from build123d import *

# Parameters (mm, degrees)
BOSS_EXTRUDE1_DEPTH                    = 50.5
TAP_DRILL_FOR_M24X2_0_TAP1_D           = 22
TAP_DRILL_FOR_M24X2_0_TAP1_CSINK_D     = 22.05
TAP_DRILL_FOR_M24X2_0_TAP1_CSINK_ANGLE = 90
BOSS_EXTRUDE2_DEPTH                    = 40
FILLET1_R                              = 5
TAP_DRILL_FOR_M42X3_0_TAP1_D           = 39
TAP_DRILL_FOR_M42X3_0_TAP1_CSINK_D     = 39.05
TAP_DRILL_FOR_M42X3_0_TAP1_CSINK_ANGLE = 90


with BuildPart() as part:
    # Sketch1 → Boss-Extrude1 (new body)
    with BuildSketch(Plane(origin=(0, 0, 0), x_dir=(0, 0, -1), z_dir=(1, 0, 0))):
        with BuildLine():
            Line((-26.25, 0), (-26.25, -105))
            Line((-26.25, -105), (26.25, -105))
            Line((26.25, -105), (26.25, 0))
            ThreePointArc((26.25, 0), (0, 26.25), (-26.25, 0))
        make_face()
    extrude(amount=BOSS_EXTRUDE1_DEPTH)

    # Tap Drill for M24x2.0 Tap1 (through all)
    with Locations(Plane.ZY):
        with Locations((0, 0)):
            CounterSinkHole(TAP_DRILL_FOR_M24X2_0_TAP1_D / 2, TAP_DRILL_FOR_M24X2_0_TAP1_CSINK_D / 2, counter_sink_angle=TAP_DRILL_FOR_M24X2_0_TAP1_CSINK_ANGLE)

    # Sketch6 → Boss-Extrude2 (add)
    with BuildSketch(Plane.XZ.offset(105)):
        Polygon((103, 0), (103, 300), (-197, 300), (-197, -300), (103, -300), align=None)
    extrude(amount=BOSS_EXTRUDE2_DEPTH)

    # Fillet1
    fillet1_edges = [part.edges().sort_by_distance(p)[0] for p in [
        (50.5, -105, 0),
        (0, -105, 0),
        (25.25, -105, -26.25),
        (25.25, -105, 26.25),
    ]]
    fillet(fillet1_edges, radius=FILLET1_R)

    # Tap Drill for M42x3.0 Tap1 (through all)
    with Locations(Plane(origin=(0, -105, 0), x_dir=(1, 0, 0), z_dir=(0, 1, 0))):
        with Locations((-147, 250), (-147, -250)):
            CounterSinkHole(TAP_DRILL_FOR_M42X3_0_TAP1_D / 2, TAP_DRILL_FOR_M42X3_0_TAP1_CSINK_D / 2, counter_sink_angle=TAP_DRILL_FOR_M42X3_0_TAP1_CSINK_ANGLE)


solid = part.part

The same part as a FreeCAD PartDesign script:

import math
import FreeCAD as App
import Part
import Sketcher
from FreeCAD import Vector


def edges_at(feature, points):
    """Names of the edges that pass closest to the given points."""
    edges = feature.Shape.Edges
    near = lambda p: min(range(len(edges)), key=lambda i: edges[i].distToShape(Part.Vertex(*p))[0])
    return sorted({f"Edge{near(p) + 1}" for p in points})

doc = App.newDocument("Part")
body = doc.addObject("PartDesign::Body", "Body")

# Sketch on YZ plane
sketch1 = body.newObject("Sketcher::SketchObject", "Sketch")
sketch1.AttachmentSupport = (doc.getObject("YZ_Plane"), [""])
sketch1.MapMode = "FlatFace"
sketch1.addGeometry(Part.LineSegment(Vector(0, 26, 0), Vector(-105, 26, 0)), False)
sketch1.addGeometry(Part.LineSegment(Vector(-105, 26, 0), Vector(-105, -26, 0)), False)
sketch1.addGeometry(Part.LineSegment(Vector(-105, -26, 0), Vector(0, -26, 0)), False)
sketch1.addGeometry(Part.ArcOfCircle(Part.Circle(Vector(0, 0, 0), Vector(0, 0, 1), 26), math.radians(-90), math.radians(90)), False)
sketch1.addConstraint(Sketcher.Constraint("Coincident", 0, 2, 1, 1))
sketch1.addConstraint(Sketcher.Constraint("Coincident", 1, 2, 2, 1))
sketch1.addConstraint(Sketcher.Constraint("Tangent", 2, 2, 3, 1))
sketch1.addConstraint(Sketcher.Constraint("Tangent", 3, 2, 0, 1))
sketch1.addConstraint(Sketcher.Constraint("Horizontal", 0))
sketch1.addConstraint(Sketcher.Constraint("Vertical", 1))
sketch1.addConstraint(Sketcher.Constraint("Horizontal", 2))
sketch1.addConstraint(Sketcher.Constraint("Coincident", 3, 3, -1, 1))
sketch1.addConstraint(Sketcher.Constraint("DistanceX", 0, 2, 0, 1, 105.0))
sketch1.addConstraint(Sketcher.Constraint("Radius", 3, 26.25))
pad1 = body.newObject("PartDesign::Pad", "Pad")
pad1.Profile = sketch1
pad1.Length = 50.5

# Sketch on YZ plane
sketch2 = body.newObject("Sketcher::SketchObject", "Sketch001")
sketch2.AttachmentSupport = (doc.getObject("YZ_Plane"), [""])
sketch2.MapMode = "FlatFace"
sketch2.addGeometry(Part.Circle(Vector(0, 0, 0), Vector(0, 0, 1), 11), False)
sketch2.addConstraint(Sketcher.Constraint("Coincident", 0, 3, -1, 1))
sketch2.addConstraint(Sketcher.Constraint("Diameter", 0, 22.0))
doc.recompute()
hole = body.newObject("PartDesign::Hole", "Hole")
hole.Profile = sketch2
hole.ThreadType = "None"
hole.Diameter = 22
hole.DepthType = "ThroughAll"
hole.HoleCutType = "Countersink"
hole.HoleCutDiameter = 22.05
hole.HoleCutCountersinkAngle = 90
hole.Reversed = True

# Sketch on XZ plane
sketch3 = body.newObject("Sketcher::SketchObject", "Sketch002")
sketch3.AttachmentSupport = (doc.getObject("XZ_Plane"), [""])
sketch3.MapMode = "FlatFace"
sketch3.AttachmentOffset = App.Placement(Vector(0, 0, 105), App.Rotation())
sketch3.addGeometry(Part.LineSegment(Vector(103, 300, 0), Vector(-197, 300, 0)), False)
sketch3.addGeometry(Part.LineSegment(Vector(-197, 300, 0), Vector(-197, -300, 0)), False)
sketch3.addGeometry(Part.LineSegment(Vector(-197, -300, 0), Vector(103, -300, 0)), False)
sketch3.addGeometry(Part.LineSegment(Vector(103, -300, 0), Vector(103, 300, 0)), False)
sketch3.addConstraint(Sketcher.Constraint("Coincident", 0, 2, 1, 1))
sketch3.addConstraint(Sketcher.Constraint("Coincident", 1, 2, 2, 1))
sketch3.addConstraint(Sketcher.Constraint("Coincident", 2, 2, 3, 1))
sketch3.addConstraint(Sketcher.Constraint("Coincident", 3, 2, 0, 1))
sketch3.addConstraint(Sketcher.Constraint("Horizontal", 0))
sketch3.addConstraint(Sketcher.Constraint("Vertical", 1))
sketch3.addConstraint(Sketcher.Constraint("Horizontal", 2))
sketch3.addConstraint(Sketcher.Constraint("Vertical", 3))
sketch3.addConstraint(Sketcher.Constraint("DistanceX", 0, 2, 0, 1, 300.0))
sketch3.addConstraint(Sketcher.Constraint("DistanceY", 1, 2, 1, 1, 600.0))
sketch3.addConstraint(Sketcher.Constraint("DistanceX", 0, 2, -1, 1, 197.0))
sketch3.addConstraint(Sketcher.Constraint("DistanceY", -1, 1, 0, 2, 300.0))
pad2 = body.newObject("PartDesign::Pad", "Pad001")
pad2.Profile = sketch3
pad2.Length = 40
doc.recompute()

fillet = body.newObject("PartDesign::Fillet", "Fillet")
fillet.Base = (pad2, edges_at(pad2, [
    (50.5, -105, 0),
    (0, -105, 0),
    (25.25, -105, -26.25),
    (25.25, -105, 26.25),
]))
fillet.Radius = 5

# Sketch on XZ plane
sketch4 = body.newObject("Sketcher::SketchObject", "Sketch003")
sketch4.AttachmentSupport = (doc.getObject("XZ_Plane"), [""])
sketch4.MapMode = "FlatFace"
sketch4.AttachmentOffset = App.Placement(Vector(0, 0, 105), App.Rotation())
sketch4.addGeometry(Part.Circle(Vector(-147, -250, 0), Vector(0, 0, 1), 20), False)
sketch4.addGeometry(Part.Circle(Vector(-147, 250, 0), Vector(0, 0, 1), 20), False)
sketch4.addConstraint(Sketcher.Constraint("Equal", 0, 1))
sketch4.addConstraint(Sketcher.Constraint("Symmetric", 0, 3, 1, 3, -1))
sketch4.addConstraint(Sketcher.Constraint("Diameter", 0, 39.0))
sketch4.addConstraint(Sketcher.Constraint("DistanceX", 0, 3, -1, 1, 147.0))
sketch4.addConstraint(Sketcher.Constraint("DistanceY", 0, 3, -1, 1, 250.0))
doc.recompute()
hole2 = body.newObject("PartDesign::Hole", "Hole001")
hole2.Profile = sketch4
hole2.ThreadType = "None"
hole2.Diameter = 39
hole2.DepthType = "ThroughAll"
hole2.HoleCutType = "Countersink"
hole2.HoleCutDiameter = 39.05
hole2.HoleCutCountersinkAngle = 90
hole2.Reversed = True

doc.recompute()
